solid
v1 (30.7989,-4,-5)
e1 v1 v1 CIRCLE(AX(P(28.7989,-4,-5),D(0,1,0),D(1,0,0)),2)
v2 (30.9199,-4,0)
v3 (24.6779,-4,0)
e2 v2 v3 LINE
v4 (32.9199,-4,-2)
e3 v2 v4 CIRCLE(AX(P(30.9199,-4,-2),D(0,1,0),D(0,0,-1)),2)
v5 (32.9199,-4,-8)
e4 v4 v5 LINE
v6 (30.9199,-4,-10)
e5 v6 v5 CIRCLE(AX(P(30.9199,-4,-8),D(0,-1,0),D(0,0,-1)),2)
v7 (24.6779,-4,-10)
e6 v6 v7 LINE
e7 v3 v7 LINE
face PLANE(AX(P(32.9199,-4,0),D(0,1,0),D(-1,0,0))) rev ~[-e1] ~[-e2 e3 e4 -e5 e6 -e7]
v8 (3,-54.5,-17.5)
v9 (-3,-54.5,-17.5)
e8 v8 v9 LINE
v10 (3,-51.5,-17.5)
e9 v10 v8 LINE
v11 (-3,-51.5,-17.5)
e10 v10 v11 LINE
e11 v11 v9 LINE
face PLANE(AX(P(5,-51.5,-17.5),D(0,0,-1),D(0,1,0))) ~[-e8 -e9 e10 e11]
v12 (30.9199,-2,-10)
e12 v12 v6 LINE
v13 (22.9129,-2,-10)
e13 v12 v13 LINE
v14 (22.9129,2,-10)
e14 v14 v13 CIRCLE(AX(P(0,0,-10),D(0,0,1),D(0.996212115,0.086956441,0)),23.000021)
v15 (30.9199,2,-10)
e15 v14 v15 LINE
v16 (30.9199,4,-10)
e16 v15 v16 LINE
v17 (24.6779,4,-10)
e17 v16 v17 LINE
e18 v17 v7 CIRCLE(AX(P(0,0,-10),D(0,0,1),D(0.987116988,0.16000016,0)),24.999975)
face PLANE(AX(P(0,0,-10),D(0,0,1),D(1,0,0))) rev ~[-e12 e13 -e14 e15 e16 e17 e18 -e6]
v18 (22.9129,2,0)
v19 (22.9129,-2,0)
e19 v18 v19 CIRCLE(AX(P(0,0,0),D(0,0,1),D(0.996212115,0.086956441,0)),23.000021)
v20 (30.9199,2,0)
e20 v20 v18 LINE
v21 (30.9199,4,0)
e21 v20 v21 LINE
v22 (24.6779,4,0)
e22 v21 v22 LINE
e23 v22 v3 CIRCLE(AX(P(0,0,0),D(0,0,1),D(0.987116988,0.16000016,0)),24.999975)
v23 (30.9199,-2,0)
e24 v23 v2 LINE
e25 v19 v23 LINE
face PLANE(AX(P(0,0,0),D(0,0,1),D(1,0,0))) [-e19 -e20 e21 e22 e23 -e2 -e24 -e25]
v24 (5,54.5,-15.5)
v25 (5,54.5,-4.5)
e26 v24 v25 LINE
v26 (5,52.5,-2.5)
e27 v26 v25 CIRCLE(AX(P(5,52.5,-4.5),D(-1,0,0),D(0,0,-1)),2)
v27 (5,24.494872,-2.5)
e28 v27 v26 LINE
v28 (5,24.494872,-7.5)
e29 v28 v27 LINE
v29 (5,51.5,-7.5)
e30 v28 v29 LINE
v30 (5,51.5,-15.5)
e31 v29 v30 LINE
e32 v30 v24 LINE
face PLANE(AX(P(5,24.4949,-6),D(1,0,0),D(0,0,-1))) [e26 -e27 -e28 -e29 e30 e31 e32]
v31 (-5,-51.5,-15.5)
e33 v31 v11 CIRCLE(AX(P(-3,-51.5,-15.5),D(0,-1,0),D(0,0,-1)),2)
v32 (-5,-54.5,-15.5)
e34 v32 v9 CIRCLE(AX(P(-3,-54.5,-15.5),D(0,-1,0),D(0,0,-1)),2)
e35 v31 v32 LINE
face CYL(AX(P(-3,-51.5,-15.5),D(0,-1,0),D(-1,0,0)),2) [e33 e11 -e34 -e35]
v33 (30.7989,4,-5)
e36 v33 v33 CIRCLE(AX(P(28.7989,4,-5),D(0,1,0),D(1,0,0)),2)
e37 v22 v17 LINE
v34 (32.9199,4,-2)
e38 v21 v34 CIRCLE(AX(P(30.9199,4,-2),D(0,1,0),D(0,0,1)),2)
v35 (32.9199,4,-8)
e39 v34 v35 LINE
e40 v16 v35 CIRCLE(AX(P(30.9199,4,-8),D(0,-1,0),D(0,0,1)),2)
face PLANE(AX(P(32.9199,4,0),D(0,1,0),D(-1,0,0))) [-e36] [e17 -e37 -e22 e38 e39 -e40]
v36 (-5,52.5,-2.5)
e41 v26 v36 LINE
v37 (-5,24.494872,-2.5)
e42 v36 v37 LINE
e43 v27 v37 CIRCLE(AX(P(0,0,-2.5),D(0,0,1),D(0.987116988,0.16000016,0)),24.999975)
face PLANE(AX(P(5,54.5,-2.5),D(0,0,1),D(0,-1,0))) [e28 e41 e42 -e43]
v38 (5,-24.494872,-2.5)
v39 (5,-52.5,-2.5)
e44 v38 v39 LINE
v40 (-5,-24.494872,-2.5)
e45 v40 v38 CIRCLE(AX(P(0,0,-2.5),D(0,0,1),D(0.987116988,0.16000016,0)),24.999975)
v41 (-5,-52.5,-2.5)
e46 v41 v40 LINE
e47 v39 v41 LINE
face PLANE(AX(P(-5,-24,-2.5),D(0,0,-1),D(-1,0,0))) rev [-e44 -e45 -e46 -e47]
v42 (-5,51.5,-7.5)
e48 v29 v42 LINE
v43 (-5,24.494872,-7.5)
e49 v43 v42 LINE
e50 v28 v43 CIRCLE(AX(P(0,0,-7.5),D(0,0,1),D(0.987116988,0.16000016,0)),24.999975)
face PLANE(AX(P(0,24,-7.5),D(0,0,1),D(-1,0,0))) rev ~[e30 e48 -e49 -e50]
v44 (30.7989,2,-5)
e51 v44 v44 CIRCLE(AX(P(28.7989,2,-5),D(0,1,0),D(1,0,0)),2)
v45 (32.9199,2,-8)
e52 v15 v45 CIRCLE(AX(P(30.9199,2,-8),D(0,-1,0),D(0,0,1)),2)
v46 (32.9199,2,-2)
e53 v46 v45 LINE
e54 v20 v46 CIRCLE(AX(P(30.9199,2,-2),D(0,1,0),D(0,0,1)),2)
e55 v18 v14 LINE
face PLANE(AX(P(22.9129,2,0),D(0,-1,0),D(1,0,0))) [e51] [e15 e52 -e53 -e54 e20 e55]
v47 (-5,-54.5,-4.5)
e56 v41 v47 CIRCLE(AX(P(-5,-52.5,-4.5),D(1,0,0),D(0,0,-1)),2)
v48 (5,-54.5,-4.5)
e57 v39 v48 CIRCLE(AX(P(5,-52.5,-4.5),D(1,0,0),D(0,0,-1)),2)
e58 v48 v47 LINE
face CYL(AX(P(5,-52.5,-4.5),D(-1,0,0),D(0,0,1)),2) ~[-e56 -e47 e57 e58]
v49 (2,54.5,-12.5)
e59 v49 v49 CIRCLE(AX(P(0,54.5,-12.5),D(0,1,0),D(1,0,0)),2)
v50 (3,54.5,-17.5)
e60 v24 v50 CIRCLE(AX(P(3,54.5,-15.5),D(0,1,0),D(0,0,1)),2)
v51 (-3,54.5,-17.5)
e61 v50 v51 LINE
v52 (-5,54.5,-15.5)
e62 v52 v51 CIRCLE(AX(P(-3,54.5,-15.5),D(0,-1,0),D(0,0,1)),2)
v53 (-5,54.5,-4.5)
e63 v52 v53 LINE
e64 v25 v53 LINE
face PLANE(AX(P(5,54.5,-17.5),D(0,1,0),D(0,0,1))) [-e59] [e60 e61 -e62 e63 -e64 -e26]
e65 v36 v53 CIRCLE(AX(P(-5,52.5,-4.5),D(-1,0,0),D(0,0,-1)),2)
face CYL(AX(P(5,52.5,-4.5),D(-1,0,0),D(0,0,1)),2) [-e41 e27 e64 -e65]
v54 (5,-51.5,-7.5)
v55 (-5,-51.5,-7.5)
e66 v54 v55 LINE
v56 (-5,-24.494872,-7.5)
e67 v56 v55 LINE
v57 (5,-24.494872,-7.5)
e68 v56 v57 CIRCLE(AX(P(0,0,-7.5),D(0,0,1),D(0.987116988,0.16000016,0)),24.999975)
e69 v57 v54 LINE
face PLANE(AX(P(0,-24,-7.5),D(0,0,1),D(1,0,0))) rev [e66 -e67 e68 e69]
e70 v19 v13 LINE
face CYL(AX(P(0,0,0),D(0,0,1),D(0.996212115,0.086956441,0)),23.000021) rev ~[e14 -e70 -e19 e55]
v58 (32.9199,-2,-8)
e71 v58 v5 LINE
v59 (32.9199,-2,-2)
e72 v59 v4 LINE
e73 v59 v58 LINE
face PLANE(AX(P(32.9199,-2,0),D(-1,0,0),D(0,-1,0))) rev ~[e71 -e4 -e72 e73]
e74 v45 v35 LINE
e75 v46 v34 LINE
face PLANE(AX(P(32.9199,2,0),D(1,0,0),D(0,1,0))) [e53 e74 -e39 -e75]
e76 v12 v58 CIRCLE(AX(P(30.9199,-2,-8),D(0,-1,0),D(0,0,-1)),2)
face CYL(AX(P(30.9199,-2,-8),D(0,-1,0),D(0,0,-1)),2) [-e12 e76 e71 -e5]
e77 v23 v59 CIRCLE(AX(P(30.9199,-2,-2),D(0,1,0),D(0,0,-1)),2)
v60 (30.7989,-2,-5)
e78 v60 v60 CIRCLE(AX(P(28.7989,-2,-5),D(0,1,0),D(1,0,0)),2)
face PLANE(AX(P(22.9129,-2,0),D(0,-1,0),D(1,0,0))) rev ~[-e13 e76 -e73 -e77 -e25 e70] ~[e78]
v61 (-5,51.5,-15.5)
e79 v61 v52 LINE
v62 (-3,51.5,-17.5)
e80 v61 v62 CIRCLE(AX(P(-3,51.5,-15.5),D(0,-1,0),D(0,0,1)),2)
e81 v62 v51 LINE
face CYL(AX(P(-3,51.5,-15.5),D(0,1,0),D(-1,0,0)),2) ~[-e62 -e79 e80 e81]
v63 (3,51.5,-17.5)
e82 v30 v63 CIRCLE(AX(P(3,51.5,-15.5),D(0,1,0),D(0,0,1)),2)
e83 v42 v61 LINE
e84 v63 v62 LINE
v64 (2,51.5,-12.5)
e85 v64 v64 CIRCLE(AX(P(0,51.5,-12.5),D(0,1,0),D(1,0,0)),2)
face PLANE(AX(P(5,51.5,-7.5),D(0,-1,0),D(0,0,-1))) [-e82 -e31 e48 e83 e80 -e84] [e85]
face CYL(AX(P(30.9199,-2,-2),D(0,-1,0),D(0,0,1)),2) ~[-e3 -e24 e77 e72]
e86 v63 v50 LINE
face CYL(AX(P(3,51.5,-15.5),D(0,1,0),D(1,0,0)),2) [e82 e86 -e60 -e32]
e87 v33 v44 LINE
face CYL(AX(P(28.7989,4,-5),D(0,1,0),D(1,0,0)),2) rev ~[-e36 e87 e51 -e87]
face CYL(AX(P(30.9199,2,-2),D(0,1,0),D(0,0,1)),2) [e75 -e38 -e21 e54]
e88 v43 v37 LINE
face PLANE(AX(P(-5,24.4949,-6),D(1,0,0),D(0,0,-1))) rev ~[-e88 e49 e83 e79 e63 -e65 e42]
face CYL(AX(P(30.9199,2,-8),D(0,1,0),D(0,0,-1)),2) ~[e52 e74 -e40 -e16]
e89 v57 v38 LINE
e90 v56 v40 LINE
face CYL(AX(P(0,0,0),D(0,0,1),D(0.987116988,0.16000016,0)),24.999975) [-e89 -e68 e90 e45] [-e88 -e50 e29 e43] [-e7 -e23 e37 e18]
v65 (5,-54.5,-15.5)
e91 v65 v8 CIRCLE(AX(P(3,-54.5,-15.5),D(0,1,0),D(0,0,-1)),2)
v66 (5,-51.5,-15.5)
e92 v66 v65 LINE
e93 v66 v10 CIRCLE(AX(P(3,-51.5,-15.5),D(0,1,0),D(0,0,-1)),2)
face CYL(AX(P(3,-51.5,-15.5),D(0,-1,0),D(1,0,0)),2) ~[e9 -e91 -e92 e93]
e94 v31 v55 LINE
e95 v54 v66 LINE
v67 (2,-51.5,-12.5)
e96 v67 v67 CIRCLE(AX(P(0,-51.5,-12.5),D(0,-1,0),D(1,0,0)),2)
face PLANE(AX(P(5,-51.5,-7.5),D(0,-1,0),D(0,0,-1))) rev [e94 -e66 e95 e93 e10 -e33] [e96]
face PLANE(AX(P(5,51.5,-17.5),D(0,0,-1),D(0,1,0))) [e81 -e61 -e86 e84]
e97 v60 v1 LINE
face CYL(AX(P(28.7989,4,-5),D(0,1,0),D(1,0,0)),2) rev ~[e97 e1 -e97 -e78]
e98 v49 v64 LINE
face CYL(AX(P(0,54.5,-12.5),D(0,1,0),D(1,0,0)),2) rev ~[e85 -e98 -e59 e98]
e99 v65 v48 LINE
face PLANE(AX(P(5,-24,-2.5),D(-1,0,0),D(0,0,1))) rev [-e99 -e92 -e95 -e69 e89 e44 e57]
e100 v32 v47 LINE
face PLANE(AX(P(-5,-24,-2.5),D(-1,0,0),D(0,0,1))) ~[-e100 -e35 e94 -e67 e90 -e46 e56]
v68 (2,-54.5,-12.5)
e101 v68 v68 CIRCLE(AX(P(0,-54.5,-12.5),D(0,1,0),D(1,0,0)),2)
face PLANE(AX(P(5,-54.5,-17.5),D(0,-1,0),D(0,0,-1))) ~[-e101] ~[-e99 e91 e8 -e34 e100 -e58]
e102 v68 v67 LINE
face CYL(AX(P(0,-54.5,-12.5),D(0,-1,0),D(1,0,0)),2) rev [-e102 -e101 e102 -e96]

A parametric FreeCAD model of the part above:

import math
import FreeCAD as App
import Part
import Sketcher
from FreeCAD import Vector
Q = App.Units.Quantity


def edges_at(feature, points):
    """Names of the edges that pass closest to the given points."""
    edges = feature.Shape.Edges
    near = lambda p: min(range(len(edges)), key=lambda i: edges[i].distToShape(Part.Vertex(*p))[0])
    return sorted({f"Edge{near(p) + 1}" for p in points})


def add_polygon(sketch, points):
    """Adds a closed chain of lines whose ends are joined by coincident constraints."""
    first, n = sketch.GeometryCount, len(points)
    for a, b in zip(points, points[1:] + points[:1]):
        sketch.addGeometry(Part.LineSegment(App.Vector(*a, 0), App.Vector(*b, 0)), False)
    for i in range(n):
        sketch.addConstraint(Sketcher.Constraint("Coincident", first + i, 2, first + (i + 1) % n, 1))

doc = App.newDocument("Part")
body = doc.addObject("PartDesign::Body", "Body")

sketch1 = body.newObject("Sketcher::SketchObject", "Sketch")
sketch1.AttachmentSupport = (doc.getObject("XY_Plane"), [""])
sketch1.MapMode = "FlatFace"
sketch1.addGeometry(Part.ArcOfCircle(Part.Circle(Vector(0, 0, 0), Vector(0, 0, 1), 23.000021), math.radians(4.988537), math.radians(355.011463)), False)
sketch1.addGeometry(Part.LineSegment(Vector(22.9129, 2, 0), Vector(32.9199, 2, 0)), False)
sketch1.addGeometry(Part.LineSegment(Vector(32.9199, 2, 0), Vector(32.9199, 4, 0)), False)
sketch1.addGeometry(Part.LineSegment(Vector(32.9199, 4, 0), Vector(24.6779, 4, 0)), False)
sketch1.addGeometry(Part.ArcOfCircle(Part.Circle(Vector(0, 0, 0), Vector(0, 0, 1), 24.999975), math.radians(9.206906), math.radians(350.793094)), False)
sketch1.addGeometry(Part.LineSegment(Vector(24.6779, -4, 0), Vector(32.9199, -4, 0)), False)
sketch1.addGeometry(Part.LineSegment(Vector(32.9199, -4, 0), Vector(32.9199, -2, 0)), False)
sketch1.addGeometry(Part.LineSegment(Vector(32.9199, -2, 0), Vector(22.9129, -2, 0)), False)
sketch1.addConstraint(Sketcher.Constraint("Coincident", 0, 1, 1, 1))
sketch1.addConstraint(Sketcher.Constraint("Coincident", 1, 2, 2, 1))
sketch1.addConstraint(Sketcher.Constraint("Coincident", 2, 2, 3, 1))
sketch1.addConstraint(Sketcher.Constraint("Coincident", 3, 2, 4, 1))
sketch1.addConstraint(Sketcher.Constraint("Coincident", 4, 2, 5, 1))
sketch1.addConstraint(Sketcher.Constraint("Coincident", 5, 2, 6, 1))
sketch1.addConstraint(Sketcher.Constraint("Coincident", 6, 2, 7, 1))
sketch1.addConstraint(Sketcher.Constraint("Coincident", 7, 2, 0, 2))
sketch1.addConstraint(Sketcher.Constraint("Horizontal", 1))
sketch1.addConstraint(Sketcher.Constraint("Vertical", 2))
sketch1.addConstraint(Sketcher.Constraint("Horizontal", 3))
sketch1.addConstraint(Sketcher.Constraint("Horizontal", 5))
sketch1.addConstraint(Sketcher.Constraint("Vertical", 6))
sketch1.addConstraint(Sketcher.Constraint("Horizontal", 7))
sketch1.addConstraint(Sketcher.Constraint("Coincident", 0, 3, -1, 1))
sketch1.addConstraint(Sketcher.Constraint("Coincident", 4, 3, -1, 1))
sketch1.addConstraint(Sketcher.Constraint("Symmetric", 2, 2, 5, 2, -1))
sketch1.addConstraint(Sketcher.Constraint("Vertical", 0, 1, 7, 2))
sketch1.addConstraint(Sketcher.Constraint("Radius", 0, Q("23 mm")))
sketch1.addConstraint(Sketcher.Constraint("Radius", 4, Q("25 mm")))
sketch1.addConstraint(Sketcher.Constraint("DistanceY", 2, 1, 2, 2, Q("2 mm")))
sketch1.addConstraint(Sketcher.Constraint("DistanceY", -1, 1, 0, 1, Q("2 mm")))
sketch1.addConstraint(Sketcher.Constraint("DistanceX", 1, 1, 1, 2, Q("10.007 mm")))
pad1 = body.newObject("PartDesign::Pad", "Pad")
pad1.Profile = sketch1
pad1.Length = 10
pad1.Reversed = True

sketch2 = body.newObject("Sketcher::SketchObject", "Sketch001")
sketch2.AttachmentSupport = (doc.getObject("XZ_Plane"), [""])
sketch2.MapMode = "FlatFace"
sketch2.AttachmentOffset = App.Placement(Vector(0, 0, -4), App.Rotation())
sketch2.addGeometry(Part.Circle(Vector(28.7989, -5, 0), Vector(0, 0, 1), 2), False)
sketch2.addConstraint(Sketcher.Constraint("Diameter", 0, Q("4 mm")))
sketch2.addConstraint(Sketcher.Constraint("DistanceY", 0, 3, -1, 1, Q("5 mm")))
sketch2.addConstraint(Sketcher.Constraint("DistanceX", -1, 1, 0, 3, Q("28.799 mm")))
pocket1 = body.newObject("PartDesign::Pocket", "Pocket")
pocket1.Profile = sketch2
pocket1.Length = 8.5
pocket1.Reversed = True

sketch3 = body.newObject("Sketcher::SketchObject", "Sketch002")
sketch3.AttachmentSupport = (doc.getObject("XZ_Plane"), [""])
sketch3.MapMode = "FlatFace"
sketch3.AttachmentOffset = App.Placement(Vector(0, 0, -24), App.Rotation())
add_polygon(sketch3, [(-5, -2.5), (5, -2.5), (5, -7.5), (-5, -7.5)])
sketch3.addConstraint(Sketcher.Constraint("Horizontal", 0))
sketch3.addConstraint(Sketcher.Constraint("Vertical", 1))
sketch3.addConstraint(Sketcher.Constraint("Horizontal", 2))
sketch3.addConstraint(Sketcher.Constraint("Vertical", 3))
sketch3.addConstraint(Sketcher.Constraint("DistanceX", 0, 1, 0, 2, Q("10 mm")))
sketch3.addConstraint(Sketcher.Constraint("DistanceY", 1, 2, 1, 1, Q("5 mm")))
sketch3.addConstraint(Sketcher.Constraint("DistanceX", -1, 1, 0, 2, Q("5 mm")))
sketch3.addConstraint(Sketcher.Constraint("DistanceY", 0, 2, -1, 1, Q("2.5 mm")))
pad2 = body.newObject("PartDesign::Pad", "Pad001")
pad2.Profile = sketch3
pad2.Length = 27.5
pad2.Reversed = True

sketch4 = body.newObject("Sketcher::SketchObject", "Sketch003")
sketch4.AttachmentSupport = (doc.getObject("YZ_Plane"), [""])
sketch4.MapMode = "FlatFace"
sketch4.AttachmentOffset = App.Placement(Vector(0, 0, 5), App.Rotation())
add_polygon(sketch4, [(51.5, -2.5), (51.5, -17.5), (54.5, -17.5), (54.5, -2.5)])
sketch4.addConstraint(Sketcher.Constraint("Vertical", 0))
sketch4.addConstraint(Sketcher.Constraint("Horizontal", 1))
sketch4.addConstraint(Sketcher.Constraint("Vertical", 2))
sketch4.addConstraint(Sketcher.Constraint("Horizontal", 3))
sketch4.addConstraint(Sketcher.Constraint("DistanceX", 1, 1, 1, 2, Q("3 mm")))
sketch4.addConstraint(Sketcher.Constraint("DistanceY", 0, 2, 0, 1, Q("15 mm")))
sketch4.addConstraint(Sketcher.Constraint("DistanceX", -1, 1, 0, 2, Q("51.5 mm")))
sketch4.addConstraint(Sketcher.Constraint("DistanceY", 0, 2, -1, 1, Q("17.5 mm")))
pad3 = body.newObject("PartDesign::Pad", "Pad002")
pad3.Profile = sketch4
pad3.Length = 10
pad3.Reversed = True

sketch5 = body.newObject("Sketcher::SketchObject", "Sketch004")
sketch5.AttachmentSupport = (doc.getObject("XZ_Plane"), [""])
sketch5.MapMode = "FlatFace"
sketch5.AttachmentOffset = App.Placement(Vector(0, 0, -54.5), App.Rotation())
sketch5.addGeometry(Part.Circle(Vector(0, -12.5, 0), Vector(0, 0, 1), 2), False)
sketch5.addConstraint(Sketcher.Constraint("PointOnObject", 0, 3, -2))
sketch5.addConstraint(Sketcher.Constraint("Diameter", 0, Q("4 mm")))
sketch5.addConstraint(Sketcher.Constraint("DistanceY", 0, 3, -1, 1, Q("12.5 mm")))
pocket2 = body.newObject("PartDesign::Pocket", "Pocket001")
pocket2.Profile = sketch5
pocket2.Length = 4
pocket2.Reversed = True
doc.recompute()

mirrored = body.newObject("PartDesign::Mirrored", "Mirrored")
mirrored.Originals = [pad3, pocket2, pad2]
mirrored.MirrorPlane = (doc.getObject("XZ_Plane"), [""])
body.Tip = mirrored
doc.recompute()

fillet = body.newObject("PartDesign::Fillet", "Fillet")
fillet.Base = (mirrored, edges_at(mirrored, [
    (0, 54.5, -2.5),
    (5, 53, -17.5),
    (-5, 53, -17.5),
    (5, -53, -17.5),
    (-5, -53, -17.5),
    (0, -54.5, -2.5),
    (32.92, 3, 0),
    (32.92, 3, -10),
    (32.92, -3, 0),
    (32.92, -3, -10),
]))
fillet.Radius = 2

doc.recompute()
